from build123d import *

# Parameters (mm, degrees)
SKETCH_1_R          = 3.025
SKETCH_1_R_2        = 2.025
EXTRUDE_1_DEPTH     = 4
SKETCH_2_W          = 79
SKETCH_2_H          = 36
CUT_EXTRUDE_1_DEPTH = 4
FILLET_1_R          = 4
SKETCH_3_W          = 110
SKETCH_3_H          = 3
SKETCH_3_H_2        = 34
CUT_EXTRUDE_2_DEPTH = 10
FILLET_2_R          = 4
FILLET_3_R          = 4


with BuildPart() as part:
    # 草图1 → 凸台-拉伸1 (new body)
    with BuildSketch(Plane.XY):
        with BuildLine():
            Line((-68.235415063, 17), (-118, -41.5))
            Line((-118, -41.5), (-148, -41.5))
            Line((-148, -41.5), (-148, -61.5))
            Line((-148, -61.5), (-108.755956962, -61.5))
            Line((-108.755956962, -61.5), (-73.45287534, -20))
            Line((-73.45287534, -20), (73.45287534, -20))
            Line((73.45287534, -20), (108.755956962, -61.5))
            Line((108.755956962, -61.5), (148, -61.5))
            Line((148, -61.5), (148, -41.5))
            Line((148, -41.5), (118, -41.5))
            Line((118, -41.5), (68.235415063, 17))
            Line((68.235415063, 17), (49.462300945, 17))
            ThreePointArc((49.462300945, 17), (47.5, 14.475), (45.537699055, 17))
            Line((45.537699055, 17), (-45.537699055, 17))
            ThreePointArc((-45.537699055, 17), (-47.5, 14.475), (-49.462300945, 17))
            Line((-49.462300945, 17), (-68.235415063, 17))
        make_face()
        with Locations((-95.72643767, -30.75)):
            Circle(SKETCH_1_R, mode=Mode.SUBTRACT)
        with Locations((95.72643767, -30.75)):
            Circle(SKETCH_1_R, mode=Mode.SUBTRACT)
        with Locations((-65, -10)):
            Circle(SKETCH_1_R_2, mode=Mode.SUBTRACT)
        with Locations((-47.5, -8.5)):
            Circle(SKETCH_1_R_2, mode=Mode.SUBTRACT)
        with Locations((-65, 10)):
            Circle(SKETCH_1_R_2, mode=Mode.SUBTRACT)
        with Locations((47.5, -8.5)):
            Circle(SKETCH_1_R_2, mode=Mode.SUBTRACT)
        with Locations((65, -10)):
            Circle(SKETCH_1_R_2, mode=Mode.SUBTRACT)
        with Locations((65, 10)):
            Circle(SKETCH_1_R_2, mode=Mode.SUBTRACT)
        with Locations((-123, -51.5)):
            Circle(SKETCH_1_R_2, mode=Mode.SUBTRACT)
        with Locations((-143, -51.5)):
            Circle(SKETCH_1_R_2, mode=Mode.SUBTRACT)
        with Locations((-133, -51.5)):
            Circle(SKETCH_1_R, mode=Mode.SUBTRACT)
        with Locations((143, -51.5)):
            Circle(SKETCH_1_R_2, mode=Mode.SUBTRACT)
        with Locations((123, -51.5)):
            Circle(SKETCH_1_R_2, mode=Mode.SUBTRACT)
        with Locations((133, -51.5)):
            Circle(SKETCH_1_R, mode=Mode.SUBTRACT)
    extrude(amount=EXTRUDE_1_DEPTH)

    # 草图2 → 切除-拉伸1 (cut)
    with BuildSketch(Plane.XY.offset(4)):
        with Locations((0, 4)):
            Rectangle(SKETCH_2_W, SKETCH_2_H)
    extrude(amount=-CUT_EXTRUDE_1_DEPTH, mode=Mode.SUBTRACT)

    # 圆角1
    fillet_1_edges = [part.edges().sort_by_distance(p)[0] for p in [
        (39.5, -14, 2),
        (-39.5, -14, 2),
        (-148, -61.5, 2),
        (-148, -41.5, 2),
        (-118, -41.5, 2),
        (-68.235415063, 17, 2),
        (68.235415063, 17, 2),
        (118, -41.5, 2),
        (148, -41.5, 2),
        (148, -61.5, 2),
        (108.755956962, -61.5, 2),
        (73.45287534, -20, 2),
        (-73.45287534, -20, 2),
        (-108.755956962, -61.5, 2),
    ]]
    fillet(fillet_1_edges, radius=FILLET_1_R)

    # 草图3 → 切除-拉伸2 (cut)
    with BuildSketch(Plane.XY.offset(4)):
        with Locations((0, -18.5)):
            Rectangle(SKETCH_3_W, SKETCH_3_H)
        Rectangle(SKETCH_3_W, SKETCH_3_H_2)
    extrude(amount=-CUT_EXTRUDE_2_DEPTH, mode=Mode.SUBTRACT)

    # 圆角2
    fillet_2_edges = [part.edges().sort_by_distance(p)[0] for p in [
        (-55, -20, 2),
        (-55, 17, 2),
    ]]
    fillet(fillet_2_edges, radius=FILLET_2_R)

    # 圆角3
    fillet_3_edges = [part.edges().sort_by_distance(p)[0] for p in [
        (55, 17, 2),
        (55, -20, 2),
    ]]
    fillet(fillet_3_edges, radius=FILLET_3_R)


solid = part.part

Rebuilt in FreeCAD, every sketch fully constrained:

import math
import FreeCAD as App
import Part
import Sketcher
from FreeCAD import Vector


def edges_at(feature, points):
    """Names of the edges that pass closest to the given points."""
    edges = feature.Shape.Edges
    near = lambda p: min(range(len(edges)), key=lambda i: edges[i].distToShape(Part.Vertex(*p))[0])
    return sorted({f"Edge{near(p) + 1}" for p in points})


def add_polygon(sketch, points):
    """Adds a closed chain of lines whose ends are joined by coincident constraints."""
    first, n = sketch.GeometryCount, len(points)
    for a, b in zip(points, points[1:] + points[:1]):
        sketch.addGeometry(Part.LineSegment(App.Vector(*a, 0), App.Vector(*b, 0)), False)
    for i in range(n):
        sketch.addConstraint(Sketcher.Constraint("Coincident", first + i, 2, first + (i + 1) % n, 1))

doc = App.newDocument("Part")
body = doc.addObject("PartDesign::Body", "Body")
body.AllowCompound = True

# Sketch on XY plane
sketch1 = doc.addObject("Sketcher::SketchObject", "Sketch")
body.addObject(sketch1)
sketch1.AttachmentSupport = (doc.XY_Plane, [""])
sketch1.MapMode = "FlatFace"
sketch1.addGeometry(Part.LineSegment(Vector(-68.2, 17, 0), Vector(-118, -41.5, 0)), False)
sketch1.addGeometry(Part.LineSegment(Vector(-118, -41.5, 0), Vector(-148, -41.5, 0)), False)
sketch1.addGeometry(Part.LineSegment(Vector(-148, -41.5, 0), Vector(-148, -61.5, 0)), False)
sketch1.addGeometry(Part.LineSegment(Vector(-148, -61.5, 0), Vector(-108.8, -61.5, 0)), False)
sketch1.addGeometry(Part.LineSegment(Vector(-108.8, -61.5, 0), Vector(-73.5, -20, 0)), False)
sketch1.addGeometry(Part.LineSegment(Vector(-73.5, -20, 0), Vector(73.5, -20, 0)), False)
sketch1.addGeometry(Part.LineSegment(Vector(73.5, -20, 0), Vector(108.8, -61.5, 0)), False)
sketch1.addGeometry(Part.LineSegment(Vector(108.8, -61.5, 0), Vector(148, -61.5, 0)), False)
sketch1.addGeometry(Part.LineSegment(Vector(148, -61.5, 0), Vector(148, -41.5, 0)), False)
sketch1.addGeometry(Part.LineSegment(Vector(148, -41.5, 0), Vector(118, -41.5, 0)), False)
sketch1.addGeometry(Part.LineSegment(Vector(118, -41.5, 0), Vector(68.2, 17, 0)), False)
sketch1.addGeometry(Part.LineSegment(Vector(68.2, 17, 0), Vector(49.5, 17, 0)), False)
sketch1.addGeometry(Part.ArcOfCircle(Part.Circle(Vector(47.5, 16.5, 0), Vector(0, 0, 1), 2), math.radians(166), math.radians(374)), False)
sketch1.addGeometry(Part.LineSegment(Vector(45.5, 17, 0), Vector(-45.5, 17, 0)), False)
sketch1.addGeometry(Part.ArcOfCircle(Part.Circle(Vector(-47.5, 16.5, 0), Vector(0, 0, 1), 2), math.radians(166), math.radians(374)), False)
sketch1.addGeometry(Part.LineSegment(Vector(-49.5, 17, 0), Vector(-68.2, 17, 0)), False)
sketch1.addGeometry(Part.Circle(Vector(-143, -51.5, 0), Vector(0, 0, 1), 2), False)
sketch1.addGeometry(Part.Circle(Vector(-133, -51.5, 0), Vector(0, 0, 1), 3), False)
sketch1.addGeometry(Part.Circle(Vector(-123, -51.5, 0), Vector(0, 0, 1), 2), False)
sketch1.addGeometry(Part.Circle(Vector(-95.7, -30.8, 0), Vector(0, 0, 1), 3), False)
sketch1.addGeometry(Part.Circle(Vector(123, -51.5, 0), Vector(0, 0, 1), 2), False)
sketch1.addGeometry(Part.Circle(Vector(133, -51.5, 0), Vector(0, 0, 1), 3), False)
sketch1.addGeometry(Part.Circle(Vector(143, -51.5, 0), Vector(0, 0, 1), 2), False)
sketch1.addGeometry(Part.Circle(Vector(95.7, -30.8, 0), Vector(0, 0, 1), 3), False)
sketch1.addGeometry(Part.Circle(Vector(-65, -10, 0), Vector(0, 0, 1), 2), False)
sketch1.addGeometry(Part.Circle(Vector(-47.5, -8.5, 0), Vector(0, 0, 1), 2), False)
sketch1.addGeometry(Part.Circle(Vector(-65, 10, 0), Vector(0, 0, 1), 2), False)
sketch1.addGeometry(Part.Circle(Vector(65, -10, 0), Vector(0, 0, 1), 2), False)
sketch1.addGeometry(Part.Circle(Vector(47.5, -8.5, 0), Vector(0, 0, 1), 2), False)
sketch1.addGeometry(Part.Circle(Vector(65, 10, 0), Vector(0, 0, 1), 2), False)
sketch1.addConstraint(Sketcher.Constraint("Coincident", 0, 2, 1, 1))
sketch1.addConstraint(Sketcher.Constraint("Coincident", 1, 2, 2, 1))
sketch1.addConstraint(Sketcher.Constraint("Coincident", 2, 2, 3, 1))
sketch1.addConstraint(Sketcher.Constraint("Coincident", 3, 2, 4, 1))
sketch1.addConstraint(Sketcher.Constraint("Coincident", 4, 2, 5, 1))
sketch1.addConstraint(Sketcher.Constraint("Coincident", 5, 2, 6, 1))
sketch1.addConstraint(Sketcher.Constraint("Coincident", 6, 2, 7, 1))
sketch1.addConstraint(Sketcher.Constraint("Coincident", 7, 2, 8, 1))
sketch1.addConstraint(Sketcher.Constraint("Coincident", 8, 2, 9, 1))
sketch1.addConstraint(Sketcher.Constraint("Coincident", 9, 2, 10, 1))
sketch1.addConstraint(Sketcher.Constraint("Coincident", 10, 2, 11, 1))
sketch1.addConstraint(Sketcher.Constraint("Coincident", 11, 2, 12, 2))
sketch1.addConstraint(Sketcher.Constraint("Coincident", 12, 1, 13, 1))
sketch1.addConstraint(Sketcher.Constraint("Coincident", 13, 2, 14, 2))
sketch1.addConstraint(Sketcher.Constraint("Coincident", 14, 1, 15, 1))
sketch1.addConstraint(Sketcher.Constraint("Coincident", 15, 2, 0, 1))
sketch1.addConstraint(Sketcher.Constraint("Horizontal", 1))
sketch1.addConstraint(Sketcher.Constraint("Vertical", 2))
sketch1.addConstraint(Sketcher.Constraint("Horizontal", 3))
sketch1.addConstraint(Sketcher.Constraint("Horizontal", 5))
sketch1.addConstraint(Sketcher.Constraint("Horizontal", 7))
sketch1.addConstraint(Sketcher.Constraint("Vertical", 8))
sketch1.addConstraint(Sketcher.Constraint("Horizontal", 9))
sketch1.addConstraint(Sketcher.Constraint("Horizontal", 11))
sketch1.addConstraint(Sketcher.Constraint("Horizontal", 13))
sketch1.addConstraint(Sketcher.Constraint("Horizontal", 15))
sketch1.addConstraint(Sketcher.Constraint("Equal", 12, 14))
sketch1.addConstraint(Sketcher.Constraint("Equal", 14, 16))
sketch1.addConstraint(Sketcher.Constraint("Equal", 16, 18))
sketch1.addConstraint(Sketcher.Constraint("Equal", 17, 19))
sketch1.addConstraint(Sketcher.Constraint("Equal", 18, 20))
sketch1.addConstraint(Sketcher.Constraint("Equal", 19, 21))
sketch1.addConstraint(Sketcher.Constraint("Equal", 20, 22))
sketch1.addConstraint(Sketcher.Constraint("Equal", 21, 23))
sketch1.addConstraint(Sketcher.Constraint("Equal", 22, 24))
sketch1.addConstraint(Sketcher.Constraint("Equal", 24, 25))
sketch1.addConstraint(Sketcher.Constraint("Equal", 25, 26))
sketch1.addConstraint(Sketcher.Constraint("Equal", 26, 27))
sketch1.addConstraint(Sketcher.Constraint("Equal", 27, 28))
sketch1.addConstraint(Sketcher.Constraint("Equal", 28, 29))
sketch1.addConstraint(Sketcher.Constraint("Symmetric", 26, 3, 27, 3, -1, 1))
sketch1.addConstraint(Sketcher.Constraint("Symmetric", 24, 3, 29, 3, -1, 1))
sketch1.addConstraint(Sketcher.Constraint("Symmetric", 12, 3, 14, 3, -2))
sketch1.addConstraint(Sketcher.Constraint("Symmetric", 18, 3, 20, 3, -2))
sketch1.addConstraint(Sketcher.Constraint("Symmetric", 17, 3, 21, 3, -2))
sketch1.addConstraint(Sketcher.Constraint("Symmetric", 16, 3, 22, 3, -2))
sketch1.addConstraint(Sketcher.Constraint("Symmetric", 19, 3, 23, 3, -2))
sketch1.addConstraint(Sketcher.Constraint("Symmetric", 24, 3, 27, 3, -2))
sketch1.addConstraint(Sketcher.Constraint("Symmetric", 25, 3, 28, 3, -2))
sketch1.addConstraint(Sketcher.Constraint("Symmetric", 3, 2, 6, 2, -2))
sketch1.addConstraint(Sketcher.Constraint("Symmetric", 1, 2, 8, 2, -2))
sketch1.addConstraint(Sketcher.Constraint("Symmetric", 10, 2, 15, 2, -2))
sketch1.addConstraint(Sketcher.Constraint("Parallel", 0, 4))
sketch1.addConstraint(Sketcher.Constraint("Parallel", 6, 10))
sketch1.addConstraint(Sketcher.Constraint("Horizontal", 16, 3, 17, 3))
sketch1.addConstraint(Sketcher.Constraint("Horizontal", 17, 3, 18, 3))
sketch1.addConstraint(Sketcher.Constraint("Horizontal", 11, 2, 12, 1))
sketch1.addConstraint(Sketcher.Constraint("Vertical", 14, 3, 25, 3))
sketch1.addConstraint(Sketcher.Constraint("Equal", 1, 9))
sketch1.addConstraint(Sketcher.Constraint("Diameter", 16, 4.05))
sketch1.addConstraint(Sketcher.Constraint("Diameter", 17, 6.05))
sketch1.addConstraint(Sketcher.Constraint("DistanceX", 1, 2, 1, 1, 30.0))
sketch1.addConstraint(Sketcher.Constraint("DistanceY", 2, 2, 2, 1, 20.0))
sketch1.addConstraint(Sketcher.Constraint("DistanceX", 16, 3, -1, 1, 143.0))
sketch1.addConstraint(Sketcher.Constraint("DistanceX", 17, 3, -1, 1, 133.0))
sketch1.addConstraint(Sketcher.Constraint("DistanceX", 18, 3, -1, 1, 123.0))
sketch1.addConstraint(Sketcher.Constraint("DistanceX", 24, 3, -1, 1, 65.0))
sketch1.addConstraint(Sketcher.Constraint("DistanceY", 24, 3, -1, 1, 10.0))
sketch1.addConstraint(Sketcher.Constraint("DistanceX", 0, 2, -1, 1, 118.0))
sketch1.addConstraint(Sketcher.Constraint("DistanceY", 4, 2, -1, 1, 20.0))
sketch1.addConstraint(Sketcher.Constraint("DistanceY", -1, 1, 10, 2, 17.0))
sketch1.addConstraint(Sketcher.Constraint("DistanceX", 14, 3, 12, 3, 95.0))
sketch1.addConstraint(Sketcher.Constraint("DistanceY", 16, 3, 14, 3, 68.0))
sketch1.addConstraint(Sketcher.Constraint("DistanceY", 25, 3, 14, 3, 25.0))
sketch1.addConstraint(Sketcher.Constraint("DistanceY", 18, 3, 0, 2, 10.0))
sketch1.addConstraint(Sketcher.Constraint("DistanceY", -1, 1, 12, 3, 16.5))
sketch1.addConstraint(Sketcher.Constraint("DistanceY", 19, 3, -1, 1, 30.75))
sketch1.addConstraint(Sketcher.Constraint("DistanceX", 5, 1, 5, 2, 146.905751))
sketch1.addConstraint(Sketcher.Constraint("Distance", 0, 76.803411))
sketch1.addConstraint(Sketcher.Constraint("DistanceX", 3, 2, 19, 3, 13.029519))
pad1 = doc.addObject("PartDesign::Pad", "Pad")
body.addObject(pad1)
pad1.Profile = sketch1
pad1.Length = 4

# Sketch on XY plane
sketch2 = doc.addObject("Sketcher::SketchObject", "Sketch001")
body.addObject(sketch2)
sketch2.AttachmentSupport = (doc.XY_Plane, [""])
sketch2.MapMode = "FlatFace"
sketch2.AttachmentOffset = App.Placement(Vector(0, 0, 4), App.Rotation())
add_polygon(sketch2, [(-40, 22), (-40, -14), (40, -14), (40, 22)])  # lines 0-3
sketch2.addConstraint(Sketcher.Constraint("Vertical", 0))
sketch2.addConstraint(Sketcher.Constraint("Horizontal", 1))
sketch2.addConstraint(Sketcher.Constraint("Vertical", 2))
sketch2.addConstraint(Sketcher.Constraint("Horizontal", 3))
sketch2.addConstraint(Sketcher.Constraint("DistanceX", 1, 1, 1, 2, 79.0))
sketch2.addConstraint(Sketcher.Constraint("DistanceY", 0, 2, 0, 1, 36.0))
sketch2.addConstraint(Sketcher.Constraint("DistanceY", 0, 2, -1, 1, 14.0))
sketch2.addConstraint(Sketcher.Constraint("DistanceX", 0, 2, -1, 1, 39.5))
pocket1 = doc.addObject("PartDesign::Pocket", "Pocket")
body.addObject(pocket1)
pocket1.Profile = sketch2
pocket1.Length = 4
doc.recompute()

fillet = doc.addObject("PartDesign::Fillet", "Fillet")
body.addObject(fillet)
fillet.Base = (pocket1, edges_at(pocket1, [
    (39.5, -14, 2),
    (-39.5, -14, 2),
    (-148, -61.5, 2),
    (-148, -41.5, 2),
    (-118, -41.5, 2),
    (-68.235, 17, 2),
    (68.235, 17, 2),
    (118, -41.5, 2),
    (148, -41.5, 2),
    (148, -61.5, 2),
    (108.756, -61.5, 2),
    (73.453, -20, 2),
    (-73.453, -20, 2),
    (-108.756, -61.5, 2),
]))
fillet.Radius = 4

# Sketch on XY plane
sketch3 = doc.addObject("Sketcher::SketchObject", "Sketch002")
body.addObject(sketch3)
sketch3.AttachmentSupport = (doc.XY_Plane, [""])
sketch3.MapMode = "FlatFace"
sketch3.AttachmentOffset = App.Placement(Vector(0, 0, 4), App.Rotation())
add_polygon(sketch3, [(-55, -20), (55, -20), (55, 17), (-55, 17)])  # lines 0-3
sketch3.addConstraint(Sketcher.Constraint("Horizontal", 0))
sketch3.addConstraint(Sketcher.Constraint("Vertical", 1))
sketch3.addConstraint(Sketcher.Constraint("Horizontal", 2))
sketch3.addConstraint(Sketcher.Constraint("Vertical", 3))
sketch3.addConstraint(Sketcher.Constraint("DistanceX", 0, 1, 0, 2, 110.0))
sketch3.addConstraint(Sketcher.Constraint("DistanceY", 1, 1, 1, 2, 37.0))
sketch3.addConstraint(Sketcher.Constraint("DistanceX", -1, 1, 0, 2, 55.0))
sketch3.addConstraint(Sketcher.Constraint("DistanceY", 0, 2, -1, 1, 20.0))
pocket2 = doc.addObject("PartDesign::Pocket", "Pocket001")
body.addObject(pocket2)
pocket2.Profile = sketch3
pocket2.Length = 10
doc.recompute()

fillet2 = doc.addObject("PartDesign::Fillet", "Fillet001")
body.addObject(fillet2)
fillet2.Base = (pocket2, edges_at(pocket2, [(-55, -20, 2), (-55, 17, 2)]))
fillet2.Radius = 4
doc.recompute()

fillet3 = doc.addObject("PartDesign::Fillet", "Fillet002")
body.addObject(fillet3)
fillet3.Base = (fillet2, edges_at(fillet2, [(55, 17, 2), (55, -20, 2)]))
fillet3.Radius = 4

doc.recompute()
